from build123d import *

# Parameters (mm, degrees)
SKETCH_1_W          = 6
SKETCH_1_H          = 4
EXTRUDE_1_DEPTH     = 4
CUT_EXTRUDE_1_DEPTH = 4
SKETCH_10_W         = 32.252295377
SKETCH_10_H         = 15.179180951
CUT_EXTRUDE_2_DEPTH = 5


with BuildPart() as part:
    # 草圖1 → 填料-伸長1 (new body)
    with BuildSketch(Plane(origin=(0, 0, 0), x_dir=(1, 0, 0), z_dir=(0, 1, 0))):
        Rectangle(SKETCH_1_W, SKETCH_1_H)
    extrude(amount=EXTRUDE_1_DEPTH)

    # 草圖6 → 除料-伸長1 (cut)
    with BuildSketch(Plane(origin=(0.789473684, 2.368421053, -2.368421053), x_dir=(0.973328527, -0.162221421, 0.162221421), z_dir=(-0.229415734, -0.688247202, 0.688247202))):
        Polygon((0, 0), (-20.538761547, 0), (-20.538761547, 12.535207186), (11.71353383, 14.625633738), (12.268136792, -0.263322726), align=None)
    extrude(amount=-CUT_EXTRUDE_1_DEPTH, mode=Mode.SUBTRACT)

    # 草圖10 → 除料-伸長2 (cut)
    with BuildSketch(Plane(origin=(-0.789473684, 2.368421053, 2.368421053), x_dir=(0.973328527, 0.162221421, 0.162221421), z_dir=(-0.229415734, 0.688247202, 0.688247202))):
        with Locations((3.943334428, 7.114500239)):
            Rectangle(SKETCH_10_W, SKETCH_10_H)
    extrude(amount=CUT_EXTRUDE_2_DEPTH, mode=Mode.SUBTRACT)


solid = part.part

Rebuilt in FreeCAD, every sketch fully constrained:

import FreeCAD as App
import Part
import Sketcher

V = App.Vector
Q = App.Units.Quantity

doc = App.newDocument("Part")
params = doc.addObject("Spreadsheet::Sheet", "Params")
for row, (alias, value) in enumerate([
    ("sketch1_width", "6 mm"),
    ("sketch1_height", "4 mm"),
    ("pad1_length", "4 mm"),
    ("pocket1_length", "4 mm"),
    ("pocket2_length", "5 mm"),
], start=1):
    params.set(f"A{row}", alias)
    params.set(f"B{row}", "=" + value)
    params.setAlias(f"B{row}", alias)

body = doc.addObject("PartDesign::Body", "Body")

# Sketch on XZ plane
sketch1 = body.newObject("Sketcher::SketchObject", "Sketch")
sketch1.AttachmentSupport = (doc.getObject("XZ_Plane"), [""])
sketch1.MapMode = "FlatFace"
sketch1.addGeometry([
    Part.LineSegment(V(-3, -2, 0), V(-3, 2, 0)),
    Part.LineSegment(V(-3, 2, 0), V(3, 2, 0)),
    Part.LineSegment(V(3, 2, 0), V(3, -2, 0)),
    Part.LineSegment(V(3, -2, 0), V(-3, -2, 0)),
], False)
sketch1.addConstraint([
    Sketcher.Constraint("Coincident", 0, 2, 1, 1),
    Sketcher.Constraint("Coincident", 1, 2, 2, 1),
    Sketcher.Constraint("Coincident", 2, 2, 3, 1),
    Sketcher.Constraint("Coincident", 3, 2, 0, 1),
    Sketcher.Constraint("Vertical", 0),
    Sketcher.Constraint("Horizontal", 1),
    Sketcher.Constraint("Vertical", 2),
    Sketcher.Constraint("Horizontal", 3),
    Sketcher.Constraint("Symmetric", 0, 2, 2, 2, -1, 1),
    Sketcher.Constraint("DistanceX", 1, 1, 1, 2, Q("6 mm")),
    Sketcher.Constraint("DistanceY", 0, 1, 0, 2, Q("4 mm")),
])
sketch1.setExpression("Constraints[9]", "Params.sketch1_width")
sketch1.setExpression("Constraints[10]", "Params.sketch1_height")
pad1 = body.newObject("PartDesign::Pad", "Pad")
pad1.Profile = sketch1
pad1.setExpression("Length", "Params.pad1_length")
pad1.Reversed = True

# Sketch on an angled plane
sketch2 = body.newObject("Sketcher::SketchObject", "Sketch001")
sketch2.Placement = App.Placement(V(0.789474, 2.368421, -2.368421), App.Rotation(V(0.973328527, -0.162221421, 0.162221421), V(0, 0.707106782, 0.707106782), V(-0.229415734, -0.688247202, 0.688247202), "ZXY"))
sketch2.addGeometry([
    Part.LineSegment(V(-21, 0, 0), V(0, 0, 0)),  # 0
    Part.LineSegment(V(0, 0, 0), V(12, 0, 0)),  # 1
    Part.LineSegment(V(12, 0, 0), V(12, 15, 0)),  # 2
    Part.LineSegment(V(12, 15, 0), V(-21, 13, 0)),  # 3
    Part.LineSegment(V(-21, 13, 0), V(-21, 0, 0)),  # 4
], False)
sketch2.addConstraint([
    Sketcher.Constraint("Coincident", 0, 2, 1, 1),
    Sketcher.Constraint("Coincident", 1, 2, 2, 1),
    Sketcher.Constraint("Coincident", 2, 2, 3, 1),
    Sketcher.Constraint("Coincident", 3, 2, 4, 1),
    Sketcher.Constraint("Coincident", 4, 2, 0, 1),
    Sketcher.Constraint("Horizontal", 0),
    Sketcher.Constraint("Vertical", 4),
    Sketcher.Constraint("Coincident", 0, 2, -1, 1),
    Sketcher.Constraint("DistanceX", 0, 1, 0, 2, Q("20.538762 mm")),
    Sketcher.Constraint("DistanceX", 3, 2, 1, 2, Q("32.806898 mm")),
    Sketcher.Constraint("Distance", 3, Q("32.31997 mm")),
    Sketcher.Constraint("DistanceY", 4, 2, 4, 1, Q("12.535207 mm")),
    Sketcher.Constraint("DistanceY", 1, 2, 3, 2, Q("12.79853 mm")),
    Sketcher.Constraint("Distance", 2, Q("14.899282 mm")),
])
pocket1 = body.newObject("PartDesign::Pocket", "Pocket")
pocket1.Profile = sketch2
pocket1.setExpression("Length", "Params.pocket1_length")

# Sketch on an angled plane
sketch3 = body.newObject("Sketcher::SketchObject", "Sketch002")
sketch3.Placement = App.Placement(V(-0.789474, 2.368421, 2.368421), App.Rotation(V(0.973328527, 0.162221421, 0.162221421), V(0, 0.707106782, -0.707106782), V(-0.229415734, 0.688247202, 0.688247202), "ZXY"))
sketch3.addGeometry([
    Part.LineSegment(V(-12, 15, 0), V(-12, 0, 0)),
    Part.LineSegment(V(-12, 0, 0), V(20, 0, 0)),
    Part.LineSegment(V(20, 0, 0), V(20, 15, 0)),
    Part.LineSegment(V(20, 15, 0), V(-12, 15, 0)),
], False)
sketch3.addConstraint([
    Sketcher.Constraint("Coincident", 0, 2, 1, 1),
    Sketcher.Constraint("Coincident", 1, 2, 2, 1),
    Sketcher.Constraint("Coincident", 2, 2, 3, 1),
    Sketcher.Constraint("Coincident", 3, 2, 0, 1),
    Sketcher.Constraint("Vertical", 0),
    Sketcher.Constraint("Horizontal", 1),
    Sketcher.Constraint("Vertical", 2),
    Sketcher.Constraint("Horizontal", 3),
    Sketcher.Constraint("DistanceY", 0, 2, 0, 1, Q("15.179181 mm")),
    Sketcher.Constraint("DistanceX", 1, 1, 1, 2, Q("32.252295 mm")),
    Sketcher.Constraint("DistanceY", 0, 2, -1, 1, Q("0.47509 mm")),
    Sketcher.Constraint("DistanceX", 0, 2, -1, 1, Q("12.182813 mm")),
])
pocket2 = body.newObject("PartDesign::Pocket", "Pocket001")
pocket2.Profile = sketch3
pocket2.setExpression("Length", "Params.pocket2_length")
pocket2.Reversed = True

doc.recompute()
